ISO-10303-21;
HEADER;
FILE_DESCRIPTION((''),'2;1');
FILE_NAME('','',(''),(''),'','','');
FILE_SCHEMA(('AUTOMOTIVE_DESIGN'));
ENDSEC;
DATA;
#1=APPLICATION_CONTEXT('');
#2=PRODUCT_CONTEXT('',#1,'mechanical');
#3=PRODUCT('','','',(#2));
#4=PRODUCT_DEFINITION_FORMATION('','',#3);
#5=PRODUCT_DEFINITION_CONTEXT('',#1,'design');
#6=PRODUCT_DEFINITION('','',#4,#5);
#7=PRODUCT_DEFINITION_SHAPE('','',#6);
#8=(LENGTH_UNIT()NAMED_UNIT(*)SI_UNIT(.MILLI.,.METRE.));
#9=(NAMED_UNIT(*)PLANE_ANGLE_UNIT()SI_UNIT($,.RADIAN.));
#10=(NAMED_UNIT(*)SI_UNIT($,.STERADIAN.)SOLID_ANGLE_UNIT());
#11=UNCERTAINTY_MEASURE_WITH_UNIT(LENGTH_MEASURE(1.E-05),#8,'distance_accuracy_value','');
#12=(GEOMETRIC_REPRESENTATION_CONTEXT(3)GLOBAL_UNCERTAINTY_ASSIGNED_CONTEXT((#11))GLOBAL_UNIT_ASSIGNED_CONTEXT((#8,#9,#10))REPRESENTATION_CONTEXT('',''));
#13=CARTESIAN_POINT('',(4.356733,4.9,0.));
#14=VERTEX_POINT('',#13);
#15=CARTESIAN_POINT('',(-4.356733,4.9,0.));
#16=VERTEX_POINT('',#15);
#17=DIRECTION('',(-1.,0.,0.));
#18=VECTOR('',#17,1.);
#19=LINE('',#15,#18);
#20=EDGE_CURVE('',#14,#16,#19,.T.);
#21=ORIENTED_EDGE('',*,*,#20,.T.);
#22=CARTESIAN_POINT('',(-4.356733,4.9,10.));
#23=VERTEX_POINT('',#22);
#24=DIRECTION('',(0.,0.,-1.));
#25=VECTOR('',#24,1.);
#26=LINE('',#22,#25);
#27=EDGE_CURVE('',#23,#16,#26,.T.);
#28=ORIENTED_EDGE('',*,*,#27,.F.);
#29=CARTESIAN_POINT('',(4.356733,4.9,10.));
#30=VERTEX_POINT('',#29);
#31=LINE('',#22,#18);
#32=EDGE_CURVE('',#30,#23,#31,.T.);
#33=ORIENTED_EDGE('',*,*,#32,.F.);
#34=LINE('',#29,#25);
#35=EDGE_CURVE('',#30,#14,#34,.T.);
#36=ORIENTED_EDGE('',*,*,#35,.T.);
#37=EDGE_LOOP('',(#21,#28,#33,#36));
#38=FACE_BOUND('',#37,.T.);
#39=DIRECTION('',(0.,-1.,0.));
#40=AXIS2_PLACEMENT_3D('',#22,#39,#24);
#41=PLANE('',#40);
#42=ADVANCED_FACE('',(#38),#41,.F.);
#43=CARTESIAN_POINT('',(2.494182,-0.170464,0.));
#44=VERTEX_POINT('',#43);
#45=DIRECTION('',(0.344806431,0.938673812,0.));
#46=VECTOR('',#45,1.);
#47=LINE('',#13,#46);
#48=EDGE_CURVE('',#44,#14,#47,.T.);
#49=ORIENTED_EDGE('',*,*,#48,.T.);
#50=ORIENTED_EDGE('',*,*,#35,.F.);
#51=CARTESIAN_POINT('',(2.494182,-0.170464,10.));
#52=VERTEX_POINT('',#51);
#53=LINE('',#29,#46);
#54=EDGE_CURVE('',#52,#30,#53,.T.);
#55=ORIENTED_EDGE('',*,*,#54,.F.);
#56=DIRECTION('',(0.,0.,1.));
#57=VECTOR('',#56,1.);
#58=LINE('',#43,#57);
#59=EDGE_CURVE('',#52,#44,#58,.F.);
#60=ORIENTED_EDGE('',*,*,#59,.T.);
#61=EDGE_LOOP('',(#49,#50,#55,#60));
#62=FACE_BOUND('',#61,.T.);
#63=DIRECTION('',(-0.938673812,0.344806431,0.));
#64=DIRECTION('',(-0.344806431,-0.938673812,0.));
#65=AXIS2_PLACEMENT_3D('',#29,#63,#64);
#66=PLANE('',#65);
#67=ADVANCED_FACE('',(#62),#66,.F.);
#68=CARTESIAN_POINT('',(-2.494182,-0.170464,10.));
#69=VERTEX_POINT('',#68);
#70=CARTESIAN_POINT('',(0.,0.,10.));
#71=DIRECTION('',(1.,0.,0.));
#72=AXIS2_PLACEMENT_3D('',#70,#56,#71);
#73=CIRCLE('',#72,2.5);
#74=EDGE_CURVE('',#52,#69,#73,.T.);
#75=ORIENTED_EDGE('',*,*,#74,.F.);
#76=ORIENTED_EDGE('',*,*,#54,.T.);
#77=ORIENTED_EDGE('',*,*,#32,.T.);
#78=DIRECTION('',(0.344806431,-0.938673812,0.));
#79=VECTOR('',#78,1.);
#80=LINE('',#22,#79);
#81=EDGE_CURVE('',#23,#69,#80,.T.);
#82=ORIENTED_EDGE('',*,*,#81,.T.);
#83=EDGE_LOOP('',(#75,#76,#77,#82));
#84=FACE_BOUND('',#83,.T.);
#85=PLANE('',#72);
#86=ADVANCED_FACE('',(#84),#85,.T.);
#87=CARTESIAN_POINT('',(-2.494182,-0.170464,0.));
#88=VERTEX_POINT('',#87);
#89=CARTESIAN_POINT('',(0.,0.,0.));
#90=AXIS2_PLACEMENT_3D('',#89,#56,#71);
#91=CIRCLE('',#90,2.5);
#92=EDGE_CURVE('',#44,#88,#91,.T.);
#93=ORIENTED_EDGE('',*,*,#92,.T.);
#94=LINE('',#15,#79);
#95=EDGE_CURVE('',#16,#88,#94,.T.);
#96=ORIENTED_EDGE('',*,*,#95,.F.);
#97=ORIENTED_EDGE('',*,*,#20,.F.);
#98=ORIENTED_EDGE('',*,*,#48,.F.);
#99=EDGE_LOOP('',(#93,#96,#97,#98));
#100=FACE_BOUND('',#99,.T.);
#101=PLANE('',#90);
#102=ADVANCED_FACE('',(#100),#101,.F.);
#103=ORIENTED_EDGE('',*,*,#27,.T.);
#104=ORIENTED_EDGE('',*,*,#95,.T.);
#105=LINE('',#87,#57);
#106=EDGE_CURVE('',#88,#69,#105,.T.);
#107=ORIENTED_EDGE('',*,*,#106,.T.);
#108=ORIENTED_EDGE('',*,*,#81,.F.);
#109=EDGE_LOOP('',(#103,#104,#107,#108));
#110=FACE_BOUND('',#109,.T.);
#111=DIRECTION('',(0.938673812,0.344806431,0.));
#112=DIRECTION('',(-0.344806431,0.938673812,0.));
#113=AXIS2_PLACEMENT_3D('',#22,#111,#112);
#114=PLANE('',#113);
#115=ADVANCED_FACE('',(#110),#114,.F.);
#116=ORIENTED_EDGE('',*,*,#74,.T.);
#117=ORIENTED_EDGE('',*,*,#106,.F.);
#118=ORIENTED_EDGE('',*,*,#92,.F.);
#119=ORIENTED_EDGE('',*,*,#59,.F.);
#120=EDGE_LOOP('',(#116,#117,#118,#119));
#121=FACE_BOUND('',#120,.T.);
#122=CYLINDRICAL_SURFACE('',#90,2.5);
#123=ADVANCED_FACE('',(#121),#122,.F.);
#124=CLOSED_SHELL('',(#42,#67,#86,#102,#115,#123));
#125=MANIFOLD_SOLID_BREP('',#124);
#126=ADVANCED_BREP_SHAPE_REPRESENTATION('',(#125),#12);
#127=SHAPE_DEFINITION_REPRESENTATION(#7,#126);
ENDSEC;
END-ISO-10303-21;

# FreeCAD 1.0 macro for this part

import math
import FreeCAD as App
import Part
import Sketcher

V = App.Vector
Q = App.Units.Quantity

doc = App.newDocument("Part")
body = doc.addObject("PartDesign::Body", "Body")

# Sketch on XY plane
sketch1 = doc.addObject("Sketcher::SketchObject", "Sketch")
body.addObject(sketch1)
sketch1.AttachmentSupport = (doc.XY_Plane, [""])
sketch1.MapMode = "FlatFace"
sketch1.addGeometry([
    Part.LineSegment(V(-4.4, 4.9, 0), V(-2.3, -0.8, 0)),
    Part.ArcOfCircle(Part.Circle(V(0, 0, 0), V(0, 0, 1), 2.4), math.radians(-160), math.radians(-20)),
    Part.LineSegment(V(2.3, -0.8, 0), V(4.4, 4.9, 0)),
    Part.LineSegment(V(4.4, 4.9, 0), V(-4.4, 4.9, 0)),
], False)
sketch1.addConstraint([
    Sketcher.Constraint("Tangent", 0, 2, 1, 1),
    Sketcher.Constraint("Tangent", 1, 2, 2, 1),
    Sketcher.Constraint("Coincident", 2, 2, 3, 1),
    Sketcher.Constraint("Coincident", 3, 2, 0, 1),
    Sketcher.Constraint("Horizontal", 3),
    Sketcher.Constraint("Coincident", 1, 3, -1, 1),
    Sketcher.Constraint("Horizontal", 0, 2, 1, 2),
    Sketcher.Constraint("Radius", 1, 2.4),
    Sketcher.Constraint("DistanceY", -1, 1, 2, 2, 4.9),
    Sketcher.Constraint("Angle", 0, Q("-69.83002 deg")),
])
pad1 = doc.addObject("PartDesign::Pad", "Pad")
body.addObject(pad1)
pad1.Profile = sketch1
pad1.Length = 10

# Sketch on XY plane
sketch2 = doc.addObject("Sketcher::SketchObject", "Sketch001")
body.addObject(sketch2)
sketch2.AttachmentSupport = (doc.XY_Plane, [""])
sketch2.MapMode = "FlatFace"
sketch2.AttachmentOffset = App.Placement(V(0, 0, 10), App.Rotation())
sketch2.addGeometry(Part.Circle(V(0, 0, 0), V(0, 0, 1), 2.5), False)
sketch2.addConstraint([
    Sketcher.Constraint("Coincident", 0, 3, -1, 1),
    Sketcher.Constraint("Diameter", 0, 5.0),
])
pocket1 = doc.addObject("PartDesign::Pocket", "Pocket")
body.addObject(pocket1)
pocket1.Profile = sketch2
pocket1.Type = "ThroughAll"

doc.recompute()
